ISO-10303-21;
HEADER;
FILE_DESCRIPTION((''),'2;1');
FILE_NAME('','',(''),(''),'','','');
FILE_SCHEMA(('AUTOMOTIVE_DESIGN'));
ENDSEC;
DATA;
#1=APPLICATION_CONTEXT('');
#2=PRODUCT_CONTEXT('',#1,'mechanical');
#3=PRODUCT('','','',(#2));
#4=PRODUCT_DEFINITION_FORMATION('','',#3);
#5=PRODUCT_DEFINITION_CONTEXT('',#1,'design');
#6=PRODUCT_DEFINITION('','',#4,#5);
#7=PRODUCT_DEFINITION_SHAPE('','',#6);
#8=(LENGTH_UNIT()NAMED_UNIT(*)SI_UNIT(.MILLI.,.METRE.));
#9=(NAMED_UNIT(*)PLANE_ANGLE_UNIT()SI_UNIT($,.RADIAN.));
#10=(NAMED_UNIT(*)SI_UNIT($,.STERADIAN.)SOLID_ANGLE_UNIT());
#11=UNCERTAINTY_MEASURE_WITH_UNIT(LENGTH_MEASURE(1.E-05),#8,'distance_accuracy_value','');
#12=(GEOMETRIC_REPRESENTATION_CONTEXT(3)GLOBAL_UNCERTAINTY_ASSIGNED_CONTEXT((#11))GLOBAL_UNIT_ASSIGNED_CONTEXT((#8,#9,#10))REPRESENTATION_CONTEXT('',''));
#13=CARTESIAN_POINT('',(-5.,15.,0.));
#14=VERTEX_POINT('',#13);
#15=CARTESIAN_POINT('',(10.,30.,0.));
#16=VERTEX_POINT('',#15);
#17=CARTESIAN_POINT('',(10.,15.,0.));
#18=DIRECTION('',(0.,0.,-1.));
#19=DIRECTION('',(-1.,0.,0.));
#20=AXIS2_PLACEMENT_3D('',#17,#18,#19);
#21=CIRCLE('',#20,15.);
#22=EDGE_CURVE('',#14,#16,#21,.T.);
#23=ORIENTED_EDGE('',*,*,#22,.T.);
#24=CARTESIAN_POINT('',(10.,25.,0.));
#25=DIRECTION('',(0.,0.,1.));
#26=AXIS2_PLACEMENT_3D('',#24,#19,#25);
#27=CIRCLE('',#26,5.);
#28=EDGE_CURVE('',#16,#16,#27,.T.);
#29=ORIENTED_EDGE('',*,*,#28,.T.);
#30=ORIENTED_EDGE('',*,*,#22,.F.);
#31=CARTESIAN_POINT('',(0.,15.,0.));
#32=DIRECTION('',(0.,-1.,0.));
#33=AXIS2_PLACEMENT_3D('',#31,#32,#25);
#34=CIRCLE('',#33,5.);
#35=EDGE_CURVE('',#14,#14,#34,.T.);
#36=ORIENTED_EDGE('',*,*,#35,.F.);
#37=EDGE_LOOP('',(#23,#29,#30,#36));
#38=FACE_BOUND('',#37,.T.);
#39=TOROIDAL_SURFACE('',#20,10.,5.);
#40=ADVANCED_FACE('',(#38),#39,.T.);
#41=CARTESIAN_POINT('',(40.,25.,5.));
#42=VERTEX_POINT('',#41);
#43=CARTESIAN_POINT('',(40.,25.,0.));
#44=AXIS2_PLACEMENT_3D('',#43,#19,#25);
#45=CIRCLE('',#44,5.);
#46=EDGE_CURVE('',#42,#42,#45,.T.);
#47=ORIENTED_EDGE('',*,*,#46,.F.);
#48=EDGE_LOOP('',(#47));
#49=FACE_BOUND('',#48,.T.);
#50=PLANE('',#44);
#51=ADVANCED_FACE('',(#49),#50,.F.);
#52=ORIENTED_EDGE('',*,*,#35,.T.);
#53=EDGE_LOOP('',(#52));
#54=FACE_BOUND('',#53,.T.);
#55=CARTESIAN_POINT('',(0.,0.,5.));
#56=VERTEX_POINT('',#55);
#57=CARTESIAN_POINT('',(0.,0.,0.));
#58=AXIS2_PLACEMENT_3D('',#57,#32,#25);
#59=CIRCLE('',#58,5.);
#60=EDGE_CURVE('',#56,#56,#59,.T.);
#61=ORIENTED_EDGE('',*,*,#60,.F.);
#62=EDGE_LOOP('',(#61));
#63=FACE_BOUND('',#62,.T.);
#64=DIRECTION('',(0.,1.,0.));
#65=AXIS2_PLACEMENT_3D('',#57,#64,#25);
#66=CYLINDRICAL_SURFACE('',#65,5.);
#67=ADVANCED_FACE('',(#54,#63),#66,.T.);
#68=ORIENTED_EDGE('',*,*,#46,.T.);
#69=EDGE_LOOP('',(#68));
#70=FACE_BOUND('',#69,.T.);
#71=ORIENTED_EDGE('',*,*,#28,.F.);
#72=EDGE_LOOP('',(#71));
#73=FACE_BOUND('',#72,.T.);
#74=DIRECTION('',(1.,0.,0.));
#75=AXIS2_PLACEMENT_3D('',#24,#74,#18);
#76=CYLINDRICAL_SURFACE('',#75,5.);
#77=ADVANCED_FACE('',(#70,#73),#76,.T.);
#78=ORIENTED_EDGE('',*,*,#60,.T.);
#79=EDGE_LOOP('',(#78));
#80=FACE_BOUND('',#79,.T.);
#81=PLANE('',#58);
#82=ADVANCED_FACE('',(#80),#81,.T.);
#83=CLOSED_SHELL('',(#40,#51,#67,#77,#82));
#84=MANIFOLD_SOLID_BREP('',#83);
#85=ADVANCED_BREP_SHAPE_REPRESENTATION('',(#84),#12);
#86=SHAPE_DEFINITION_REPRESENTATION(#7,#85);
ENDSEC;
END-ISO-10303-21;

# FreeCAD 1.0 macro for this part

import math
import FreeCAD as App
import Part
import Sketcher

V = App.Vector

doc = App.newDocument("Part")
params = doc.addObject("Spreadsheet::Sheet", "Params")
for row, (alias, value) in enumerate([
    ("sketch1_diameter", "10 mm"),
    ("sketch2_radius", "10 mm"),
    ("sketch2_width", "30 mm"),
    ("sketch2_height", "15 mm"),
], start=1):
    params.set(f"A{row}", alias)
    params.set(f"B{row}", "=" + value)
    params.setAlias(f"B{row}", alias)

body = doc.addObject("PartDesign::Body", "Body")

# Sketch on XZ plane
sketch1 = doc.addObject("Sketcher::SketchObject", "Sketch")
body.addObject(sketch1)
sketch1.AttachmentSupport = (doc.XZ_Plane, [""])
sketch1.MapMode = "FlatFace"
sketch1.addGeometry(Part.Circle(V(0, 0, 0), V(0, 0, 1), 5), False)
sketch1.addConstraint([
    Sketcher.Constraint("Coincident", 0, 3, -1, 1),
    Sketcher.Constraint("Diameter", 0, 10.0),
])
sketch1.setExpression("Constraints[1]", "Params.sketch1_diameter")

# Sketch on XY plane
sketch2 = doc.addObject("Sketcher::SketchObject", "Sketch001")
body.addObject(sketch2)
sketch2.AttachmentSupport = (doc.XY_Plane, [""])
sketch2.MapMode = "FlatFace"
sketch2.addGeometry([
    Part.LineSegment(V(0, 0, 0), V(0, 15, 0)),
    Part.ArcOfCircle(Part.Circle(V(10, 15, 0), V(0, 0, 1), 10), math.radians(90), math.radians(180)),
    Part.LineSegment(V(10, 25, 0), V(40, 25, 0)),
], False)
sketch2.addConstraint([
    Sketcher.Constraint("Tangent", 0, 2, 1, 2),
    Sketcher.Constraint("Tangent", 1, 1, 2, 1),
    Sketcher.Constraint("Vertical", 0),
    Sketcher.Constraint("Horizontal", 2),
    Sketcher.Constraint("Coincident", 0, 1, -1, 1),
    Sketcher.Constraint("Radius", 1, 10.0),
    Sketcher.Constraint("DistanceX", 2, 1, 2, 2, 30.0),
    Sketcher.Constraint("DistanceY", 0, 1, 0, 2, 15.0),
])
sketch2.setExpression("Constraints[5]", "Params.sketch2_radius")
sketch2.setExpression("Constraints[6]", "Params.sketch2_width")
sketch2.setExpression("Constraints[7]", "Params.sketch2_height")
doc.recompute()

additivepipe = doc.addObject("PartDesign::AdditivePipe", "AdditivePipe")
body.addObject(additivepipe)
additivepipe.Profile = sketch1
additivepipe.Spine = (sketch2, ["Edge1", "Edge2", "Edge3"])

doc.recompute()
